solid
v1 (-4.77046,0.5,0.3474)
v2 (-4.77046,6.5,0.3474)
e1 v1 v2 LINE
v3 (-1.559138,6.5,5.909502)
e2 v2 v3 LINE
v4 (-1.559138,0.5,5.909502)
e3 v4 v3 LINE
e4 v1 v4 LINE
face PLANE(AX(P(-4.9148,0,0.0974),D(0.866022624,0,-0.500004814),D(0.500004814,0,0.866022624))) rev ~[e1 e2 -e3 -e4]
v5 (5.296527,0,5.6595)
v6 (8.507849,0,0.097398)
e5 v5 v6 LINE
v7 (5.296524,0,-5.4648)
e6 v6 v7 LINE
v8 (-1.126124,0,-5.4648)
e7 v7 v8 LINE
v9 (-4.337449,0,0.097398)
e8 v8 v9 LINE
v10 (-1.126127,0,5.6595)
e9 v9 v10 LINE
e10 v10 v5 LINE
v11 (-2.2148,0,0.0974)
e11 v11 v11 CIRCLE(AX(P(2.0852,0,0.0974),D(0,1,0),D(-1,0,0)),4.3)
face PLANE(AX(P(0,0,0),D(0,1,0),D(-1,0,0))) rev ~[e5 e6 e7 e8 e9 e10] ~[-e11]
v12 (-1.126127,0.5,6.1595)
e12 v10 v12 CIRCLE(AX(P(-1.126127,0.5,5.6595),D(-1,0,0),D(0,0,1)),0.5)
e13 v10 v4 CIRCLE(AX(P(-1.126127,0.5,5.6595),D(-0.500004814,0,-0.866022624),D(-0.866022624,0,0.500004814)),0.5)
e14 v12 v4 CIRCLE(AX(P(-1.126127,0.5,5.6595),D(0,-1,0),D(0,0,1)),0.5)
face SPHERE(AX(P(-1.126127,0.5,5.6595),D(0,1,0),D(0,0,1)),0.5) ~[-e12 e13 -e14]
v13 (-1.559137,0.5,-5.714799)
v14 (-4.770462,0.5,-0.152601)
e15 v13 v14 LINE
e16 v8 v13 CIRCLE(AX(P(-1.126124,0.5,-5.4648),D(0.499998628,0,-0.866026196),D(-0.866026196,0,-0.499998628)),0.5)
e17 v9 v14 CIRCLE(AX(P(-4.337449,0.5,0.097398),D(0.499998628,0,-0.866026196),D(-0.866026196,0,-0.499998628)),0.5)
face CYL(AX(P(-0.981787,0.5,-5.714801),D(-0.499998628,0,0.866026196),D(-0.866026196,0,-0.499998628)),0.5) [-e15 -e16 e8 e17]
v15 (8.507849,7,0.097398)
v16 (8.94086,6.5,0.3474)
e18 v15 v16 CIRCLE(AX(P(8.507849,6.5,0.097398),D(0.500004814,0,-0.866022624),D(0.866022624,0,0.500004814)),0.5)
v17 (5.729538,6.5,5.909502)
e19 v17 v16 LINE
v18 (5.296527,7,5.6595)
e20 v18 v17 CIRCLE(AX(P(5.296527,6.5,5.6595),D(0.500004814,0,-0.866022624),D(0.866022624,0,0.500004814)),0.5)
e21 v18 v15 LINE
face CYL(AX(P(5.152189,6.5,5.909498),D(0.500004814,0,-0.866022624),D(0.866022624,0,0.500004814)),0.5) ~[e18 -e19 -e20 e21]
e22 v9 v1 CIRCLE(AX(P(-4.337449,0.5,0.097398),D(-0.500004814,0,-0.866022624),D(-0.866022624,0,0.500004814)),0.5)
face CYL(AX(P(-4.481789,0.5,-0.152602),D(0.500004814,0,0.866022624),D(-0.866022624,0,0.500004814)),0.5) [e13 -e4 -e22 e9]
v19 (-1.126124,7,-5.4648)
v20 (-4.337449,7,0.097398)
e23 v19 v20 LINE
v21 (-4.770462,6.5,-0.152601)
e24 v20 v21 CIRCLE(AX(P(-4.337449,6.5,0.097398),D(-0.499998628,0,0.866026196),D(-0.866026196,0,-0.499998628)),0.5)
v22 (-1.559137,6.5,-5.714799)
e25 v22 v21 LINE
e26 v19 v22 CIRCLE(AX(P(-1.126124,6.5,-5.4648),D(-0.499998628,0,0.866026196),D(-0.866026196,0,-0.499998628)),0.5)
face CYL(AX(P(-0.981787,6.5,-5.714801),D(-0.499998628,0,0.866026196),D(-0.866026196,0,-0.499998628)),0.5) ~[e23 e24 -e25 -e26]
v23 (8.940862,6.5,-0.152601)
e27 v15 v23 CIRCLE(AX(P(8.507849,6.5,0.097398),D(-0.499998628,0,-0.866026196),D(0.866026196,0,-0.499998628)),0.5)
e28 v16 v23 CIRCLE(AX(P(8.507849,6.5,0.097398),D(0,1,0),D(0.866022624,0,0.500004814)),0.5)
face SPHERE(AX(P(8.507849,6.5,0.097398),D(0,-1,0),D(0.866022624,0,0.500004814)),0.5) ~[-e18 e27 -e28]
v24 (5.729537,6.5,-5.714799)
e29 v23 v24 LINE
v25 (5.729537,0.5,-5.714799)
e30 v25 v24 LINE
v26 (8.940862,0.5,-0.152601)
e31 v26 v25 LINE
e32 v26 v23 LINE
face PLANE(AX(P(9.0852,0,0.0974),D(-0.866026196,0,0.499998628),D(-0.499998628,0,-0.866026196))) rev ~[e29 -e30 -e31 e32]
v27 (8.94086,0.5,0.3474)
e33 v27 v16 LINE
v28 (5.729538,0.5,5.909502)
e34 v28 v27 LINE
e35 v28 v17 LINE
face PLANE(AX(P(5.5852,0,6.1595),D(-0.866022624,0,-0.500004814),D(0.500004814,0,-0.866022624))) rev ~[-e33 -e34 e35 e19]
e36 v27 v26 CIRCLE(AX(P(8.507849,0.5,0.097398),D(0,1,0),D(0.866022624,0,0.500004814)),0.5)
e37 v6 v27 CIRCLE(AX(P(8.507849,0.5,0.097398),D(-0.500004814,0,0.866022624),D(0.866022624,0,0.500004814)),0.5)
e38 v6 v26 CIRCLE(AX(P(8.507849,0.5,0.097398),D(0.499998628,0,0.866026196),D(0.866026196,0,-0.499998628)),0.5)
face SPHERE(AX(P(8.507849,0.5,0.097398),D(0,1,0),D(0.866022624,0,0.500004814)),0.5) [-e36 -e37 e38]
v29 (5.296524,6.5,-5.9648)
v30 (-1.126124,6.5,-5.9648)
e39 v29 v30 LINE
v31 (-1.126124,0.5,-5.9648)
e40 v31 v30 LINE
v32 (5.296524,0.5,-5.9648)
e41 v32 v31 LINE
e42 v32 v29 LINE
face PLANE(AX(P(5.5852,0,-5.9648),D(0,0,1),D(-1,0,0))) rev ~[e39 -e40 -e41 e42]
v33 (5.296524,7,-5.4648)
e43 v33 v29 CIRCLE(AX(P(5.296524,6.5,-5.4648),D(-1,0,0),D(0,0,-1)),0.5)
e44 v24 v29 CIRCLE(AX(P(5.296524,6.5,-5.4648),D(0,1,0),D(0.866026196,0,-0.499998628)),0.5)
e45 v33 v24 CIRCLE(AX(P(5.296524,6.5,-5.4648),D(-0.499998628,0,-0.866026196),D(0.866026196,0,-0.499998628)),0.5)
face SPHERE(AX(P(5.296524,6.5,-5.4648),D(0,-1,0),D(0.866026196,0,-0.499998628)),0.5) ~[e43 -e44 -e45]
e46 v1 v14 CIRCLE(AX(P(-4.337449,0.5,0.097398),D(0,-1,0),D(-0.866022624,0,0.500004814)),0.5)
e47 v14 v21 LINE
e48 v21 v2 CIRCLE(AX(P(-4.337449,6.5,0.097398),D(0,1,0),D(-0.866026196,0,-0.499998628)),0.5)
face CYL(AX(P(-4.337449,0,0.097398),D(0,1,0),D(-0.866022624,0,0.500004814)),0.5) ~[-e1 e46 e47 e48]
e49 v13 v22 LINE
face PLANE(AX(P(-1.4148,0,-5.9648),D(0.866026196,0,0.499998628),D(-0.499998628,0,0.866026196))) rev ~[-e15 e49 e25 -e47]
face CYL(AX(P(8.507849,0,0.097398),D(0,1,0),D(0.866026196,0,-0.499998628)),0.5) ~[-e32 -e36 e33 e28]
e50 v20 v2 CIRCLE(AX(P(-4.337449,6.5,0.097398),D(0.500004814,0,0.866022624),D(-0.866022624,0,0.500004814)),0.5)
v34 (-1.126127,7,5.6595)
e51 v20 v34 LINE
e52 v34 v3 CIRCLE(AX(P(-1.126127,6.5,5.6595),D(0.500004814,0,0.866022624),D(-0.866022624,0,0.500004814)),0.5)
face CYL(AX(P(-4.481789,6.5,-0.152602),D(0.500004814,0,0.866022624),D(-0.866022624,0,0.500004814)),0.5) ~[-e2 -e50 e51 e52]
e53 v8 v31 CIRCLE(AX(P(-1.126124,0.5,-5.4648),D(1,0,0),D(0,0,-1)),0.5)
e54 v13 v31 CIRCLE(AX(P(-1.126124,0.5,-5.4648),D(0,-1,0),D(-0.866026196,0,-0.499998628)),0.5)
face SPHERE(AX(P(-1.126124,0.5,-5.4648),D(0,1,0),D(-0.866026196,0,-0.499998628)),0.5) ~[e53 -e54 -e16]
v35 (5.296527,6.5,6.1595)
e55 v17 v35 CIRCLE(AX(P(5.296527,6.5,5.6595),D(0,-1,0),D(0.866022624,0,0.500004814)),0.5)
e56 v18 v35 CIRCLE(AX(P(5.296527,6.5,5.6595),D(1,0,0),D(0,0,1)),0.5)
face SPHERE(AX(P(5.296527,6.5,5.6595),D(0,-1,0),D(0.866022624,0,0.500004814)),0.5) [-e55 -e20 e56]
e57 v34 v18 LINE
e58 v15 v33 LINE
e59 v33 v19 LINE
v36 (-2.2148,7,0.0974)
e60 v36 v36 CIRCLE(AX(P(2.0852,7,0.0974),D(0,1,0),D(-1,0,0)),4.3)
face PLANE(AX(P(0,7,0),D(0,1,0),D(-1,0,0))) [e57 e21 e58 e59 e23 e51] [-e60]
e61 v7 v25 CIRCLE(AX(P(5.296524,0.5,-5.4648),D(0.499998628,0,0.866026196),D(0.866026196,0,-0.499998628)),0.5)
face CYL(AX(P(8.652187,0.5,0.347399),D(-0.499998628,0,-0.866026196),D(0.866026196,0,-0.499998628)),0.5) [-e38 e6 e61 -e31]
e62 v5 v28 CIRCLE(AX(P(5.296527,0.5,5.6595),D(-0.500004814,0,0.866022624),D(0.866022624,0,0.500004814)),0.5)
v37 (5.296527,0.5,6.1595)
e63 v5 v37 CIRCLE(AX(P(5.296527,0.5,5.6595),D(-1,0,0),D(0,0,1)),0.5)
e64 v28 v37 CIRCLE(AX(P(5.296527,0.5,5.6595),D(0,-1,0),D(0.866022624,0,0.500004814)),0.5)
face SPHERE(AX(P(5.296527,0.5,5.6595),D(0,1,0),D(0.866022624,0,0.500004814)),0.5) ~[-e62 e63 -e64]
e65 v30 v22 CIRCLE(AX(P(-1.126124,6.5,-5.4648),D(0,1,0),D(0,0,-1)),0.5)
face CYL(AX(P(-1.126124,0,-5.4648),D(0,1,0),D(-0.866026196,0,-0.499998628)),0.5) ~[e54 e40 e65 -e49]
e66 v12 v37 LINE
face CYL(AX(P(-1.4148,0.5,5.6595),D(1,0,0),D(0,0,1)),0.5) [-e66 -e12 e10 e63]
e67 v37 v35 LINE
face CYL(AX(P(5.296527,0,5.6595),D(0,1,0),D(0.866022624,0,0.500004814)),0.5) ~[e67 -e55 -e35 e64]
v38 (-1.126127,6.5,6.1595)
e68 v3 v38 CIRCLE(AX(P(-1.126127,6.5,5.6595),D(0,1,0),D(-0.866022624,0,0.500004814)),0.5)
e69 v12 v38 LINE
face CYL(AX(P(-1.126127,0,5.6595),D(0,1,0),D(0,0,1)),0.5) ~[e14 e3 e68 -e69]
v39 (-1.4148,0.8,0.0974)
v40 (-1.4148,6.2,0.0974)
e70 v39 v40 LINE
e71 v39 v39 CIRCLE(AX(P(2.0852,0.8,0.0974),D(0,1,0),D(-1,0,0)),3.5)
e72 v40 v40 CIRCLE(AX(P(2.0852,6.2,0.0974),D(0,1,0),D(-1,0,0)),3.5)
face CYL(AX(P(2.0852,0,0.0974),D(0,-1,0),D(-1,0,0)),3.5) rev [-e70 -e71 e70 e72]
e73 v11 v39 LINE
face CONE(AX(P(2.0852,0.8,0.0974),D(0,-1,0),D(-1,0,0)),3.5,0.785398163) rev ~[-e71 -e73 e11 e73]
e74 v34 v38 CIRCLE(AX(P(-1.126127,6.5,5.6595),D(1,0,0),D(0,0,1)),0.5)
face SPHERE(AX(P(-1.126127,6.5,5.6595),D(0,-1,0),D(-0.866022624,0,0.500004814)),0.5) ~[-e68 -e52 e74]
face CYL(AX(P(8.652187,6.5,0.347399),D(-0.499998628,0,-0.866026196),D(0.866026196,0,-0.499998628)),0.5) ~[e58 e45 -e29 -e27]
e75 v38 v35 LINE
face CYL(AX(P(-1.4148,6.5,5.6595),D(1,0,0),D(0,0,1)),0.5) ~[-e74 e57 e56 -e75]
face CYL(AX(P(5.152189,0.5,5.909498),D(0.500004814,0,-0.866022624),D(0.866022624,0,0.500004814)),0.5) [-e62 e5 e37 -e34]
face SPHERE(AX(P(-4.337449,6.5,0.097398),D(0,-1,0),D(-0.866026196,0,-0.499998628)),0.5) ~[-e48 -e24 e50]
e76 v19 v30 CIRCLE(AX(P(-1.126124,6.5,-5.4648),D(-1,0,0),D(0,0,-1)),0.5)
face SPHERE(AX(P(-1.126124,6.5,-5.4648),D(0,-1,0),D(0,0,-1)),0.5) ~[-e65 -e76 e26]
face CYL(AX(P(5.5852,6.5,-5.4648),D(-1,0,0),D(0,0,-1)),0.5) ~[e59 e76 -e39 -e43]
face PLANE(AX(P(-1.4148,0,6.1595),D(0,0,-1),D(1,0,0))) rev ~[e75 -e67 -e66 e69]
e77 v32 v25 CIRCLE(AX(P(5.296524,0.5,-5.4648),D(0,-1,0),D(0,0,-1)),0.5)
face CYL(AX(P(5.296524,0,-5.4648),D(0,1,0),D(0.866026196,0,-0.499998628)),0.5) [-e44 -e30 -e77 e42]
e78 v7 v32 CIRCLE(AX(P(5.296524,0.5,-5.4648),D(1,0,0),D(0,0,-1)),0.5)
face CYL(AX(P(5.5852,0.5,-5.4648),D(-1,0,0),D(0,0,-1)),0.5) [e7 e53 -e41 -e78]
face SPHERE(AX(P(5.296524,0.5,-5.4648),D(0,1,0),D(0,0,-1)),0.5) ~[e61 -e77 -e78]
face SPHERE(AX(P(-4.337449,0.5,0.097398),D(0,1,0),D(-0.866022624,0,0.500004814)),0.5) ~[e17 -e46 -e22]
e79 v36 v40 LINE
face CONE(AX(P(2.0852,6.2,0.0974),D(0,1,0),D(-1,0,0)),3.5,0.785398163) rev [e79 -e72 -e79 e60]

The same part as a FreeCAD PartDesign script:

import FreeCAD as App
import Part
import Sketcher
from FreeCAD import Vector
Q = App.Units.Quantity


def edges_at(feature, points):
    """Names of the edges that pass closest to the given points."""
    edges = feature.Shape.Edges
    near = lambda p: min(range(len(edges)), key=lambda i: edges[i].distToShape(Part.Vertex(*p))[0])
    return sorted({f"Edge{near(p) + 1}" for p in points})

doc = App.newDocument("Part")
body = doc.addObject("PartDesign::Body", "Body")

sketch1 = body.newObject("Sketcher::SketchObject", "Sketch")
sketch1.AttachmentSupport = (doc.getObject("XZ_Plane"), [""])
sketch1.MapMode = "FlatFace"
sketch1.addGeometry([
    Part.LineSegment(Vector(9.1, 0.1, 0), Vector(5.6, -6, 0)),
    Part.LineSegment(Vector(5.6, -6, 0), Vector(-1.4, -6, 0)),
    Part.LineSegment(Vector(-1.4, -6, 0), Vector(-4.9, 0.1, 0)),
    Part.LineSegment(Vector(-4.9, 0.1, 0), Vector(-1.4, 6.2, 0)),
    Part.LineSegment(Vector(-1.4, 6.2, 0), Vector(5.6, 6.2, 0)),
    Part.LineSegment(Vector(5.6, 6.2, 0), Vector(9.1, 0.1, 0)),
    Part.Circle(Vector(2.1, 0.1, 0), Vector(0, 0, 1), 3.5),
], False)
sketch1.addConstraint([
    Sketcher.Constraint("Coincident", 0, 2, 1, 1),
    Sketcher.Constraint("Coincident", 1, 2, 2, 1),
    Sketcher.Constraint("Coincident", 2, 2, 3, 1),
    Sketcher.Constraint("Coincident", 3, 2, 4, 1),
    Sketcher.Constraint("Coincident", 4, 2, 5, 1),
    Sketcher.Constraint("Coincident", 5, 2, 0, 1),
    Sketcher.Constraint("Horizontal", 1),
    Sketcher.Constraint("Horizontal", 4),
    Sketcher.Constraint("Parallel", 0, 3),
    Sketcher.Constraint("Parallel", 2, 5),
    Sketcher.Constraint("Horizontal", 6, 3, 2, 2),
    Sketcher.Constraint("Horizontal", 2, 2, 5, 2),
    Sketcher.Constraint("Vertical", 1, 2, 3, 2),
    Sketcher.Constraint("Vertical", 0, 2, 4, 2),
    Sketcher.Constraint("Diameter", 6, Q("7 mm")),
    Sketcher.Constraint("DistanceX", 1, 2, 1, 1, Q("7 mm")),
    Sketcher.Constraint("Angle", 0, Q("-120 deg")),
    Sketcher.Constraint("Distance", 0, Q("7 mm")),
    Sketcher.Constraint("DistanceX", 2, 2, 6, 3, Q("7 mm")),
    Sketcher.Constraint("DistanceX", -1, 1, 6, 3, Q("2.0852 mm")),
    Sketcher.Constraint("DistanceY", -1, 1, 6, 3, Q("0.0974 mm")),
])
pad1 = body.newObject("PartDesign::Pad", "Pad")
pad1.Profile = sketch1
pad1.Length = 7
pad1.Reversed = True
doc.recompute()

fillet = body.newObject("PartDesign::Fillet", "Fillet")
fillet.Base = (pad1, edges_at(pad1, [
    (-1.415, 3.5, 6.16),
    (-4.915, 3.5, 0.097),
    (-1.415, 3.5, -5.965),
    (5.585, 3.5, -5.965),
    (9.085, 3.5, 0.097),
    (5.585, 3.5, 6.16),
    (7.335, 0, 3.128),
    (2.085, 0, 6.16),
    (-3.165, 0, 3.128),
    (-3.165, 0, -2.934),
    (2.085, 0, -5.965),
    (7.335, 0, -2.934),
    (7.335, 7, 3.128),
    (7.335, 7, -2.934),
    (2.085, 7, -5.965),
    (-3.165, 7, -2.934),
    (-3.165, 7, 3.128),
    (2.085, 7, 6.16),
]))
fillet.Radius = 0.5
doc.recompute()

chamfer = body.newObject("PartDesign::Chamfer", "Chamfer")
chamfer.Base = (fillet, edges_at(fillet, [(5.585, 7, 0.097), (5.585, 0, 0.097)]))
chamfer.Size = 0.8

doc.recompute()
